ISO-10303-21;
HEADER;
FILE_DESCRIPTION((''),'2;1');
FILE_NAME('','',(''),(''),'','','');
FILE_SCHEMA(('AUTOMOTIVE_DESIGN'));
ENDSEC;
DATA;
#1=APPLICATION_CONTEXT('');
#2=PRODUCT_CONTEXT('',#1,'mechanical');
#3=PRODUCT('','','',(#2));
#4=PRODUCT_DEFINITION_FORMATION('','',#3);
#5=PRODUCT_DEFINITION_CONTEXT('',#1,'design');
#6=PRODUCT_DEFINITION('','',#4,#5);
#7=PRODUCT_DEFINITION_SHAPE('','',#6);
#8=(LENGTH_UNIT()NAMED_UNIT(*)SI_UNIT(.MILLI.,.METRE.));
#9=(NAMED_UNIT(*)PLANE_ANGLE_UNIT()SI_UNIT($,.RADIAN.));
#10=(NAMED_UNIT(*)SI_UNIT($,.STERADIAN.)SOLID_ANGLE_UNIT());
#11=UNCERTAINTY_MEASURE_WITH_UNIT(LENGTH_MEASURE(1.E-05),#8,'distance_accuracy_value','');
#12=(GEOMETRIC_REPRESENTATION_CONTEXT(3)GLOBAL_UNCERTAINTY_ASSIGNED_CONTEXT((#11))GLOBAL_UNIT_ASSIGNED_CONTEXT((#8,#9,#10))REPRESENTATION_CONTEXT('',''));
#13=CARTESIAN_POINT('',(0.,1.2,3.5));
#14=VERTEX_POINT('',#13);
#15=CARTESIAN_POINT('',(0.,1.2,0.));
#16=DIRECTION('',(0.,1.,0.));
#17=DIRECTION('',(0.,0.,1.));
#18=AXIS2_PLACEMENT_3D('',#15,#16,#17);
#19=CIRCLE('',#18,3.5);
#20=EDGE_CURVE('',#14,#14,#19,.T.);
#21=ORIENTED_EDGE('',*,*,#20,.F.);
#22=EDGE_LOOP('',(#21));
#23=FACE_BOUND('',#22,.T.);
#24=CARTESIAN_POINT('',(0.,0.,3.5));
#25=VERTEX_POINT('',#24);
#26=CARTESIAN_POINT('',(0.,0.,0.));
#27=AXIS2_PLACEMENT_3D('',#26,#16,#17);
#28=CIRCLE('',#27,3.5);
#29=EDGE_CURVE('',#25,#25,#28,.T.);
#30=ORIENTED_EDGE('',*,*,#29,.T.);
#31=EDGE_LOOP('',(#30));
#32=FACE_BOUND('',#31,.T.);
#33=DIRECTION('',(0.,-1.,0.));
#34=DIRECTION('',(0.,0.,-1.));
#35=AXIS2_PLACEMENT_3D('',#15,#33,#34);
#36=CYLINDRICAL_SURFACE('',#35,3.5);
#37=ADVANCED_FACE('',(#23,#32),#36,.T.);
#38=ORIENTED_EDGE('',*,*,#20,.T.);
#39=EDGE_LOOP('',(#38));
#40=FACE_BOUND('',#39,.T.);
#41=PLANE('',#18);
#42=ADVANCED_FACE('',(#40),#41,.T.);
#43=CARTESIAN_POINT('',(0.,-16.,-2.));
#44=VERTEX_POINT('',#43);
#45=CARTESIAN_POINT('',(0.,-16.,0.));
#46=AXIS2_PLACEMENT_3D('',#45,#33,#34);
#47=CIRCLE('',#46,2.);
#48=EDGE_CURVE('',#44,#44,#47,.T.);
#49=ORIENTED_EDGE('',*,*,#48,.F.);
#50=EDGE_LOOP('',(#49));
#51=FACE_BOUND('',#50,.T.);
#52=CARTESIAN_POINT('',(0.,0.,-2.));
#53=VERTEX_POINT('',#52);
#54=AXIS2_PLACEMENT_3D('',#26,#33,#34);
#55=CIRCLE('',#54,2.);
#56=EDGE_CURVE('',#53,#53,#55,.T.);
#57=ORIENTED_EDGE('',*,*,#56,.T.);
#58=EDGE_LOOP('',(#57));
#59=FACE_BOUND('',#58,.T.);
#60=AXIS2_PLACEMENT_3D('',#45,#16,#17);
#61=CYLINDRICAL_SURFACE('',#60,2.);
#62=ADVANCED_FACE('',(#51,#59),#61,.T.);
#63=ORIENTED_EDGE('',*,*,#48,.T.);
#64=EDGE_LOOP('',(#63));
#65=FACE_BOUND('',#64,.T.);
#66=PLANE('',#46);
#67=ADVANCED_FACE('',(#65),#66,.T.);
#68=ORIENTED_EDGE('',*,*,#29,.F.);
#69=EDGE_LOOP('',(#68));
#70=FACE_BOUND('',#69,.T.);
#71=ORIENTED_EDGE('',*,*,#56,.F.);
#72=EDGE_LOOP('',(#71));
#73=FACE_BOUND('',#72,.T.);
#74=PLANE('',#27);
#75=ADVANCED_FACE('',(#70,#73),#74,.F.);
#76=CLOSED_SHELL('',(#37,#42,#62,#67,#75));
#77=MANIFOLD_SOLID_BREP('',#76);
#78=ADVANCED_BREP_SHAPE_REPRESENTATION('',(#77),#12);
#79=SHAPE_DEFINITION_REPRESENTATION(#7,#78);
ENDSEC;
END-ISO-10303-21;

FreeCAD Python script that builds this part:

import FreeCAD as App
import Part
import Sketcher
Q = App.Units.Quantity

doc = App.newDocument("Part")
body = doc.addObject("PartDesign::Body", "Body")

sketch1 = body.newObject("Sketcher::SketchObject", "Sketch")
sketch1.AttachmentSupport = (doc.getObject("XZ_Plane"), [""])
sketch1.MapMode = "FlatFace"
sketch1.addGeometry(Part.Circle(App.Vector(0, 0, 0), App.Vector(0, 0, 1), 3.5), False)
sketch1.addConstraint(Sketcher.Constraint("Coincident", 0, 3, -1, 1))
sketch1.addConstraint(Sketcher.Constraint("Diameter", 0, Q("7 mm")))
pad1 = body.newObject("PartDesign::Pad", "Pad")
pad1.Profile = sketch1
pad1.Length = 1.2
pad1.Reversed = True

sketch2 = body.newObject("Sketcher::SketchObject", "Sketch001")
sketch2.AttachmentSupport = (doc.getObject("XZ_Plane"), [""])
sketch2.MapMode = "FlatFace"
sketch2.addGeometry(Part.Circle(App.Vector(0, 0, 0), App.Vector(0, 0, 1), 2), False)
sketch2.addConstraint(Sketcher.Constraint("Coincident", 0, 3, -1, 1))
sketch2.addConstraint(Sketcher.Constraint("Diameter", 0, Q("4 mm")))
pad2 = body.newObject("PartDesign::Pad", "Pad001")
pad2.Profile = sketch2
pad2.Length = 16

doc.recompute()
